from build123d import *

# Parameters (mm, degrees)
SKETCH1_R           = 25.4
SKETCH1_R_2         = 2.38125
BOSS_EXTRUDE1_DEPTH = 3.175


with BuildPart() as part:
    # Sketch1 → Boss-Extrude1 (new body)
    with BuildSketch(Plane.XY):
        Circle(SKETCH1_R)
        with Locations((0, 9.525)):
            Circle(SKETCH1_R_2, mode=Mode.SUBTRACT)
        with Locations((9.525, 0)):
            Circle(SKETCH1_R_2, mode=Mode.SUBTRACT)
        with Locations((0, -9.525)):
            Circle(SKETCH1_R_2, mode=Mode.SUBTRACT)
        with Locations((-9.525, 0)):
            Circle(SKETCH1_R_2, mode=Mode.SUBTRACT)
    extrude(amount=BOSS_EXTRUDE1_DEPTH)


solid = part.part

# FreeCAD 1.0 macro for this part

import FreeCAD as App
import Part
import Sketcher
Q = App.Units.Quantity

doc = App.newDocument("Part")
body = doc.addObject("PartDesign::Body", "Body")

# Sketch on XY plane
sketch1 = doc.addObject("Sketcher::SketchObject", "Sketch")
body.addObject(sketch1)
sketch1.AttachmentSupport = (doc.XY_Plane, [""])
sketch1.MapMode = "FlatFace"
sketch1.addGeometry(Part.Circle(App.Vector(0, 0, 0), App.Vector(0, 0, 1), 25.4), False)
sketch1.addGeometry(Part.Circle(App.Vector(0, -9.5, 0), App.Vector(0, 0, 1), 2.4), False)
sketch1.addGeometry(Part.Circle(App.Vector(-9.5, 0, 0), App.Vector(0, 0, 1), 2.4), False)
sketch1.addGeometry(Part.Circle(App.Vector(9.5, 0, 0), App.Vector(0, 0, 1), 2.4), False)
sketch1.addGeometry(Part.Circle(App.Vector(0, 9.5, 0), App.Vector(0, 0, 1), 2.4), False)
sketch1.addConstraint(Sketcher.Constraint("Coincident", 0, 3, -1, 1))
sketch1.addConstraint(Sketcher.Constraint("Equal", 1, 2))
sketch1.addConstraint(Sketcher.Constraint("Equal", 2, 3))
sketch1.addConstraint(Sketcher.Constraint("Equal", 3, 4))
sketch1.addConstraint(Sketcher.Constraint("Symmetric", 2, 3, 3, 3, -1, 1))
sketch1.addConstraint(Sketcher.Constraint("Symmetric", 1, 3, 4, 3, -1, 1))
sketch1.addConstraint(Sketcher.Constraint("PointOnObject", 1, 3, -2))
sketch1.addConstraint(Sketcher.Constraint("PointOnObject", 2, 3, -1))
sketch1.addConstraint(Sketcher.Constraint("Diameter", 0, Q("2 in")))
sketch1.addConstraint(Sketcher.Constraint("Diameter", 1, Q("0.1875 in")))
sketch1.addConstraint(Sketcher.Constraint("DistanceX", 2, 3, 3, 3, Q("0.75 in")))
sketch1.addConstraint(Sketcher.Constraint("DistanceY", 1, 3, 4, 3, Q("0.75 in")))
pad1 = doc.addObject("PartDesign::Pad", "Pad")
body.addObject(pad1)
pad1.Profile = sketch1
pad1.Length = Q("0.125 in")

doc.recompute()
